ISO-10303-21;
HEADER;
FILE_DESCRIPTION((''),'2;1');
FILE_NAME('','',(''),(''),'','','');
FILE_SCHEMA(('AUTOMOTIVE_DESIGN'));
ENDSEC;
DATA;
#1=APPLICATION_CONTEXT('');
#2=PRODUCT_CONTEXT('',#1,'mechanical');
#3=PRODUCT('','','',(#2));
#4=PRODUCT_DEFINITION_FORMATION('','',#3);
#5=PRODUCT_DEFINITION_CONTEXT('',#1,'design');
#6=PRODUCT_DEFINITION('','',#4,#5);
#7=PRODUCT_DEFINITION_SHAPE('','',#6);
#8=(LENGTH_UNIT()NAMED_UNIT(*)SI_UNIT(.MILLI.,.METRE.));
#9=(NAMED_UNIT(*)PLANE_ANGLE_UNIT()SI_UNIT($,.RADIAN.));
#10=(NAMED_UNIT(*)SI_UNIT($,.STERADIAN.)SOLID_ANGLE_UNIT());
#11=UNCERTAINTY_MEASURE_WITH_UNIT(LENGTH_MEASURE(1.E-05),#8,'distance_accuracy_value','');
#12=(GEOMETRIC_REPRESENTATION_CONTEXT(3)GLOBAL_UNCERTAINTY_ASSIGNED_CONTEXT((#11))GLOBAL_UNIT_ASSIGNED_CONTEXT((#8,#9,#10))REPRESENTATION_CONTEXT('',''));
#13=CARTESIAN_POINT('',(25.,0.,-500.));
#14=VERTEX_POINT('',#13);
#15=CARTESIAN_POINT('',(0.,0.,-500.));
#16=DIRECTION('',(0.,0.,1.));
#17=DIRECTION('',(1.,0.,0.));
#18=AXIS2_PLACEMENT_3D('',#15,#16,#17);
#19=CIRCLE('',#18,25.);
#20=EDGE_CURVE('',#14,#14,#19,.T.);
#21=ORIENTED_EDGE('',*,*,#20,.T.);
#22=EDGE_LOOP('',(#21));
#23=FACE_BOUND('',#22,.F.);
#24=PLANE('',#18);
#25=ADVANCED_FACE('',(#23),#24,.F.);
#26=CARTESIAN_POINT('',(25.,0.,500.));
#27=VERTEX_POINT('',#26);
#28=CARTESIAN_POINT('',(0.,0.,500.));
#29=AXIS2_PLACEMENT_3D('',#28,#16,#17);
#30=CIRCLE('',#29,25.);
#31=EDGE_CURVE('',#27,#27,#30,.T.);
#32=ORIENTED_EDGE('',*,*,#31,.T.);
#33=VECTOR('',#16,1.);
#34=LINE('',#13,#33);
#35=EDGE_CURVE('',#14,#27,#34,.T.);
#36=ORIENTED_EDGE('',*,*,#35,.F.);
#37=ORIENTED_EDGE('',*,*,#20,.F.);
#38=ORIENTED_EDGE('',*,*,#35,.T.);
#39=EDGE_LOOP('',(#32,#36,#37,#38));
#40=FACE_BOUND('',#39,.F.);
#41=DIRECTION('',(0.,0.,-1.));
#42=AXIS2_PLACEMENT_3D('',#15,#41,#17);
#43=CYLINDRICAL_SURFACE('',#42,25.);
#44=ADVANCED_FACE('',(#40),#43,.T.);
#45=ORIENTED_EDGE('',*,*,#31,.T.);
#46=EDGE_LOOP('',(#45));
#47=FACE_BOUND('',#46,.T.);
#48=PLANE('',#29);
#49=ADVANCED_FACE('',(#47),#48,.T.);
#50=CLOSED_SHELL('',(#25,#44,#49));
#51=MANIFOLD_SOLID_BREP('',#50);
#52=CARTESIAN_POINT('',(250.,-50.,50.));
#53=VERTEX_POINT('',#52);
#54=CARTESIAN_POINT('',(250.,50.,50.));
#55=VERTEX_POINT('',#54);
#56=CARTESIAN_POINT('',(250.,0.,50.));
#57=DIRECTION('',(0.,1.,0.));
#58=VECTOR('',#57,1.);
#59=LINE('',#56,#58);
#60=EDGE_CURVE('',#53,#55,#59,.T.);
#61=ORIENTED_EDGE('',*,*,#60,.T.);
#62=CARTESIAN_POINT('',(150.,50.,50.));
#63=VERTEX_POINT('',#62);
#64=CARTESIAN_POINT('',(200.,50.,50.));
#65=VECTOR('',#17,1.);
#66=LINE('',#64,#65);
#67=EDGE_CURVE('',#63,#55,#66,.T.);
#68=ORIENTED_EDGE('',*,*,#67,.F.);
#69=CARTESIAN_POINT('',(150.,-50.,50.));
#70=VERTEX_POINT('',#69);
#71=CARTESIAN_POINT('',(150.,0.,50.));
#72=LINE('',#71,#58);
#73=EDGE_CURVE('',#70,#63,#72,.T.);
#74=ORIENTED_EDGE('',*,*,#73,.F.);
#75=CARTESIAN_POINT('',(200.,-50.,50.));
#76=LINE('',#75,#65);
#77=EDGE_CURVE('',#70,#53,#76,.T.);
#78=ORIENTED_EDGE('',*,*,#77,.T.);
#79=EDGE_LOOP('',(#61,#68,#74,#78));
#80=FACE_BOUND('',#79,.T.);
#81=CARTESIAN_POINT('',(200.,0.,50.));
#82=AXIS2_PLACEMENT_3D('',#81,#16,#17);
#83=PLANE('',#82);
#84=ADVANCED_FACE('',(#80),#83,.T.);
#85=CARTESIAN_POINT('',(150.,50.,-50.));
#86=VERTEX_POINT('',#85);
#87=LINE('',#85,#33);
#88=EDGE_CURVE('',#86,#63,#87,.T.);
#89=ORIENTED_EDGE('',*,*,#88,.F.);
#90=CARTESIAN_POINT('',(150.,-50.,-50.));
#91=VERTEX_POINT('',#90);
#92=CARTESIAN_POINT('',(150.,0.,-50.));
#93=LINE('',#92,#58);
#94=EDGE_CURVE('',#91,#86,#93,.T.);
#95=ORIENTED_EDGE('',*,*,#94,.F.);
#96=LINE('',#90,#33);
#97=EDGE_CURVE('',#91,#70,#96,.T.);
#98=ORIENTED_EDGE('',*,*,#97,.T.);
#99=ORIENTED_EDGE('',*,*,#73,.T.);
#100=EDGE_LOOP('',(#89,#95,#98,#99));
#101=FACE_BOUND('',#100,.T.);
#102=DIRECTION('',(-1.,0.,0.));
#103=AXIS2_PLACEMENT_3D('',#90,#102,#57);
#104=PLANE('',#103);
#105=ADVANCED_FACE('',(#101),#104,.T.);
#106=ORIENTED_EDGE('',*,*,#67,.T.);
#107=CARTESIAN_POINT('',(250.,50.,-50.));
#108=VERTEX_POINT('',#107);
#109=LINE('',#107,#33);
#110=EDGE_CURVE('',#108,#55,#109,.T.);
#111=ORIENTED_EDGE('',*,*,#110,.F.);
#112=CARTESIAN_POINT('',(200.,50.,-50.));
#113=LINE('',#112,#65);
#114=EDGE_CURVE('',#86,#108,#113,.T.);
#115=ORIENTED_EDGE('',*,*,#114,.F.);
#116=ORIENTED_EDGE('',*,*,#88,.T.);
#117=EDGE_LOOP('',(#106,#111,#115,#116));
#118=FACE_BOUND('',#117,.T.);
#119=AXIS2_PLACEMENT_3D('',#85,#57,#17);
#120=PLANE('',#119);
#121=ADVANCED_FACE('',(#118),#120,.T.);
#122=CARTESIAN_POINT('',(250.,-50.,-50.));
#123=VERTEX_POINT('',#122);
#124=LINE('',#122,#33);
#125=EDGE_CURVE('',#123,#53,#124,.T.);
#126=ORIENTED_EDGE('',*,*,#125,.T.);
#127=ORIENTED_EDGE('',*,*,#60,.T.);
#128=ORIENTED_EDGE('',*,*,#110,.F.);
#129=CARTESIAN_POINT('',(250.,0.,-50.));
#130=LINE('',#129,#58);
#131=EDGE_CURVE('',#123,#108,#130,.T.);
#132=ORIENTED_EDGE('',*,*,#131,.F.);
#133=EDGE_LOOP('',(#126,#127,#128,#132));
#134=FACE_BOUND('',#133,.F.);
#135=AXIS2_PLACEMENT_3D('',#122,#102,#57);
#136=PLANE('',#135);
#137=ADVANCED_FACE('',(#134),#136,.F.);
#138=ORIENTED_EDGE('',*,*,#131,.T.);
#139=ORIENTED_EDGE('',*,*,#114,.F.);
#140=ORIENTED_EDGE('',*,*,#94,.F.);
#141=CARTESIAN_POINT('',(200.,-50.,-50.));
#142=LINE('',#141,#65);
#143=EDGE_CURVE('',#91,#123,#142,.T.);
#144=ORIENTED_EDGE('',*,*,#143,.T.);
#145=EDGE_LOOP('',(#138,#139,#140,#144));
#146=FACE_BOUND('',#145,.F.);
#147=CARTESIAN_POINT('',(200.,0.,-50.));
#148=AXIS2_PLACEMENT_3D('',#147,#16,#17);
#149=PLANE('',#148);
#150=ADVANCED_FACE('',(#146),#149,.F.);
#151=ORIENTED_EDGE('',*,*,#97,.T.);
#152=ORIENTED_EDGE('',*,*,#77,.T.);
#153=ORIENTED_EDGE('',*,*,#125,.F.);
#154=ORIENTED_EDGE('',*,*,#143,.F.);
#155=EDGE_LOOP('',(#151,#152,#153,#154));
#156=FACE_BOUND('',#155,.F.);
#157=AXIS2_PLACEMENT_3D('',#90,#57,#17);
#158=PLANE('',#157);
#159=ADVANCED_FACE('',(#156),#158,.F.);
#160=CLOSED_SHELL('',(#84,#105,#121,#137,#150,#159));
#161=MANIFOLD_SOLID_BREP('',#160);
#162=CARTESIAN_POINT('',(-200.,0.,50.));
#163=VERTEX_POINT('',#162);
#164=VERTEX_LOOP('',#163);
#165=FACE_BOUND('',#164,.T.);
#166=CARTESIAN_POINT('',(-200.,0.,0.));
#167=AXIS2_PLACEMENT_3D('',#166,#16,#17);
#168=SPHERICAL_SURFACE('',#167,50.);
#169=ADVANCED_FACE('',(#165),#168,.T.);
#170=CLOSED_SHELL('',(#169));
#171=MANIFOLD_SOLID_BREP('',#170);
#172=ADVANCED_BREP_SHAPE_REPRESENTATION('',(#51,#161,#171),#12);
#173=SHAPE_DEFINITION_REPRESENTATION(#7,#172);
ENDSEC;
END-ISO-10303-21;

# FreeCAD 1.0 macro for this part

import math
import FreeCAD as App
import Part
import Sketcher
from FreeCAD import Vector
Q = App.Units.Quantity

doc = App.newDocument("Part")
body = doc.addObject("PartDesign::Body", "Body")

# Sketch on XZ plane
sketch1 = body.newObject("Sketcher::SketchObject", "Sketch")
sketch1.AttachmentSupport = (doc.getObject("XZ_Plane"), [""])
sketch1.MapMode = "FlatFace"
sketch1.addGeometry([
    Part.ArcOfCircle(Part.Circle(Vector(-200, 0, 0), Vector(0, 0, 1), 50), math.radians(-90), math.radians(90)),
    Part.LineSegment(Vector(-200, 50, 0), Vector(-200, -50, 0)),
], False)
sketch1.addGeometry(Part.LineSegment(Vector(-200, -50, 0), Vector(-200, 50, 0)), True)  # axis
sketch1.addConstraint([
    Sketcher.Constraint("Coincident", 0, 1, 1, 2),
    Sketcher.Constraint("Coincident", 1, 1, 0, 2),
    Sketcher.Constraint("Vertical", 1),
    Sketcher.Constraint("Vertical", 2),
    Sketcher.Constraint("Coincident", 2, 1, 0, 1),
    Sketcher.Constraint("PointOnObject", 0, 3, -1),
    Sketcher.Constraint("Equal", 1, 2),
    Sketcher.Constraint("Radius", 0, Q("50 mm")),
    Sketcher.Constraint("DistanceX", 0, 3, -1, 1, Q("200 mm")),
    Sketcher.Constraint("DistanceX", 0, 1, -1, 1, Q("200 mm")),
])
revolution = body.newObject("PartDesign::Revolution", "Revolution")
revolution.Profile = sketch1
revolution.ReferenceAxis = (sketch1, ["Axis0"])
revolution.Angle = 360
body2 = doc.addObject("PartDesign::Body", "Body001")

# Sketch on XY plane
sketch2 = body2.newObject("Sketcher::SketchObject", "Sketch001")
sketch2.AttachmentSupport = (doc.getObject("XY_Plane001"), [""])
sketch2.MapMode = "FlatFace"
sketch2.AttachmentOffset = App.Placement(Vector(0, 0, -500), App.Rotation())
sketch2.addGeometry(Part.Circle(Vector(0, 0, 0), Vector(0, 0, 1), 25), False)
sketch2.addConstraint([
    Sketcher.Constraint("Coincident", 0, 3, -1, 1),
    Sketcher.Constraint("Diameter", 0, Q("50 mm")),
])
pad1 = body2.newObject("PartDesign::Pad", "Pad")
pad1.Profile = sketch2
pad1.Length = 1000
body3 = doc.addObject("PartDesign::Body", "Body002")

# Sketch on XY plane
sketch3 = body3.newObject("Sketcher::SketchObject", "Sketch002")
sketch3.AttachmentSupport = (doc.getObject("XY_Plane002"), [""])
sketch3.MapMode = "FlatFace"
sketch3.AttachmentOffset = App.Placement(Vector(0, 0, -50), App.Rotation())
sketch3.addGeometry([
    Part.LineSegment(Vector(150, 50, 0), Vector(150, -50, 0)),
    Part.LineSegment(Vector(150, -50, 0), Vector(250, -50, 0)),
    Part.LineSegment(Vector(250, -50, 0), Vector(250, 50, 0)),
    Part.LineSegment(Vector(250, 50, 0), Vector(150, 50, 0)),
], False)
sketch3.addConstraint([
    Sketcher.Constraint("Coincident", 0, 2, 1, 1),
    Sketcher.Constraint("Coincident", 1, 2, 2, 1),
    Sketcher.Constraint("Coincident", 2, 2, 3, 1),
    Sketcher.Constraint("Coincident", 3, 2, 0, 1),
    Sketcher.Constraint("Vertical", 0),
    Sketcher.Constraint("Horizontal", 1),
    Sketcher.Constraint("Vertical", 2),
    Sketcher.Constraint("Horizontal", 3),
    Sketcher.Constraint("Equal", 3, 0),
    Sketcher.Constraint("DistanceX", 1, 1, 1, 2, Q("100 mm")),
    Sketcher.Constraint("DistanceX", -1, 1, 0, 2, Q("150 mm")),
    Sketcher.Constraint("DistanceY", 0, 2, -1, 1, Q("50 mm")),
])
pad2 = body3.newObject("PartDesign::Pad", "Pad001")
pad2.Profile = sketch3
pad2.Length = 100

doc.recompute()
